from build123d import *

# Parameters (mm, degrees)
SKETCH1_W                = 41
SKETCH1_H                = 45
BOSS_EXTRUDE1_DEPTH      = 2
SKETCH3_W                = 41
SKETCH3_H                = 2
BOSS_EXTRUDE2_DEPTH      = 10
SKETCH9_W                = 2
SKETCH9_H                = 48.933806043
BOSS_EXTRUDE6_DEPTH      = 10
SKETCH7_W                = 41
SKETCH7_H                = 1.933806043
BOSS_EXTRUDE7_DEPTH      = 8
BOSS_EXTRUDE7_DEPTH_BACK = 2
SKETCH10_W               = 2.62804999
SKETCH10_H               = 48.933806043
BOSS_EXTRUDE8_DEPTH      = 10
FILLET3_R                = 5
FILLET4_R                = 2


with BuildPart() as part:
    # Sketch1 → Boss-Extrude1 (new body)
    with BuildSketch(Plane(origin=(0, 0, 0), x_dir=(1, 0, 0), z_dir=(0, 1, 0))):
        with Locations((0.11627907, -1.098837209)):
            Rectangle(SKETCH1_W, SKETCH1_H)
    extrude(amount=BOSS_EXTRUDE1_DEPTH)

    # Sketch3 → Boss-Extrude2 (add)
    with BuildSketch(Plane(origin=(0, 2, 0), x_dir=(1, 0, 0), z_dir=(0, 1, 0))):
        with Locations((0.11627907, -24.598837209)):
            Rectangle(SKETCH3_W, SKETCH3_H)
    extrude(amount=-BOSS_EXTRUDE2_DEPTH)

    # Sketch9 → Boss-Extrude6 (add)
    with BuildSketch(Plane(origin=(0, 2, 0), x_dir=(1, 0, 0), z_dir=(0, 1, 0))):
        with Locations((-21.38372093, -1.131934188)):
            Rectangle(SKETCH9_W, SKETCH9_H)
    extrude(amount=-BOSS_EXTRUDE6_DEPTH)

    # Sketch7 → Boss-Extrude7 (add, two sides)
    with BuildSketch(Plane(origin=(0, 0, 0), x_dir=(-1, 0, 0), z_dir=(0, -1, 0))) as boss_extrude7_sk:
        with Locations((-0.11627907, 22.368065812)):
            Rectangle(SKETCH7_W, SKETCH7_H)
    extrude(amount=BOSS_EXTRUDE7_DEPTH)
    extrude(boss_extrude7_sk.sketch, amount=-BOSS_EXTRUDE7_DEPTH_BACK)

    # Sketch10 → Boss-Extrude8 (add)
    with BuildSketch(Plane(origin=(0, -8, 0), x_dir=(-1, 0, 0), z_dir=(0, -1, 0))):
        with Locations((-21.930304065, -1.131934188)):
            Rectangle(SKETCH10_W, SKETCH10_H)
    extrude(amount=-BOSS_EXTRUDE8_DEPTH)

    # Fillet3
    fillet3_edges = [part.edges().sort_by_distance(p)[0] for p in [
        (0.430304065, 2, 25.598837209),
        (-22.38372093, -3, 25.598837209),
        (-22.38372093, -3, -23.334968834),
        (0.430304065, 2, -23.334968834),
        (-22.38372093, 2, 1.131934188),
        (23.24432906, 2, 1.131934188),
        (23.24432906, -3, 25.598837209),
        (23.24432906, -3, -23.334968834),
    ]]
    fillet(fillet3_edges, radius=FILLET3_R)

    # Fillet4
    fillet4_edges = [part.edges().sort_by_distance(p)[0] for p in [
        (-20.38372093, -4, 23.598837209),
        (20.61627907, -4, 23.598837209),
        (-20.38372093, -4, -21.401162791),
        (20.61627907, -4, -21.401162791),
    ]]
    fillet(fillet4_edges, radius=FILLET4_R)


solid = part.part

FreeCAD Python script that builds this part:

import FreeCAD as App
import Part
import Sketcher
from FreeCAD import Vector


def edges_at(feature, points):
    """Names of the edges that pass closest to the given points."""
    edges = feature.Shape.Edges
    near = lambda p: min(range(len(edges)), key=lambda i: edges[i].distToShape(Part.Vertex(*p))[0])
    return sorted({f"Edge{near(p) + 1}" for p in points})

doc = App.newDocument("Part")
params = doc.addObject("Spreadsheet::Sheet", "Params")
for row, (alias, value) in enumerate([
    ("sketch1_width", "41 mm"),
    ("sketch1_height", "45 mm"),
    ("pad1_length", "2 mm"),
    ("sketch2_width", "41 mm"),
    ("sketch2_height", "2 mm"),
    ("pad2_length", "10 mm"),
    ("sketch3_width", "2 mm"),
    ("pad3_length", "10 mm"),
    ("sketch4_width", "41 mm"),
    ("pad4_length", "8 mm"),
    ("pad4_length2", "2 mm"),
    ("pad5_length", "10 mm"),
    ("fillet_radius", "5 mm"),
    ("fillet2_radius", "2 mm"),
], start=1):
    params.set(f"A{row}", alias)
    params.set(f"B{row}", "=" + value)
    params.setAlias(f"B{row}", alias)

body = doc.addObject("PartDesign::Body", "Body")

# Sketch on XZ plane
sketch1 = body.newObject("Sketcher::SketchObject", "Sketch")
sketch1.AttachmentSupport = (doc.getObject("XZ_Plane"), [""])
sketch1.MapMode = "FlatFace"
sketch1.addGeometry(Part.LineSegment(Vector(-20, -21, 0), Vector(-20, 24, 0)), False)
sketch1.addGeometry(Part.LineSegment(Vector(-20, 24, 0), Vector(21, 24, 0)), False)
sketch1.addGeometry(Part.LineSegment(Vector(21, 24, 0), Vector(21, -21, 0)), False)
sketch1.addGeometry(Part.LineSegment(Vector(21, -21, 0), Vector(-20, -21, 0)), False)
sketch1.addConstraint(Sketcher.Constraint("Coincident", 0, 2, 1, 1))
sketch1.addConstraint(Sketcher.Constraint("Coincident", 1, 2, 2, 1))
sketch1.addConstraint(Sketcher.Constraint("Coincident", 2, 2, 3, 1))
sketch1.addConstraint(Sketcher.Constraint("Coincident", 3, 2, 0, 1))
sketch1.addConstraint(Sketcher.Constraint("Vertical", 0))
sketch1.addConstraint(Sketcher.Constraint("Horizontal", 1))
sketch1.addConstraint(Sketcher.Constraint("Vertical", 2))
sketch1.addConstraint(Sketcher.Constraint("Horizontal", 3))
sketch1.addConstraint(Sketcher.Constraint("DistanceX", 1, 1, 1, 2, 41.0))
sketch1.addConstraint(Sketcher.Constraint("DistanceY", 0, 1, 0, 2, 45.0))
sketch1.addConstraint(Sketcher.Constraint("DistanceX", 0, 2, -1, 1, 20.383721))
sketch1.addConstraint(Sketcher.Constraint("DistanceY", -1, 1, 0, 2, 23.598837))
sketch1.setExpression("Constraints[8]", "Params.sketch1_width")
sketch1.setExpression("Constraints[9]", "Params.sketch1_height")
pad1 = body.newObject("PartDesign::Pad", "Pad")
pad1.Profile = sketch1
pad1.setExpression("Length", "Params.pad1_length")
pad1.Reversed = True

# Sketch on XZ plane
sketch2 = body.newObject("Sketcher::SketchObject", "Sketch001")
sketch2.AttachmentSupport = (doc.getObject("XZ_Plane"), [""])
sketch2.MapMode = "FlatFace"
sketch2.AttachmentOffset = App.Placement(Vector(0, 0, -2), App.Rotation())
sketch2.addGeometry(Part.LineSegment(Vector(-20.4, 23.6, 0), Vector(-20.4, 25.6, 0)), False)
sketch2.addGeometry(Part.LineSegment(Vector(-20.4, 25.6, 0), Vector(20.6, 25.6, 0)), False)
sketch2.addGeometry(Part.LineSegment(Vector(20.6, 25.6, 0), Vector(20.6, 23.6, 0)), False)
sketch2.addGeometry(Part.LineSegment(Vector(20.6, 23.6, 0), Vector(-20.4, 23.6, 0)), False)
sketch2.addConstraint(Sketcher.Constraint("Coincident", 0, 2, 1, 1))
sketch2.addConstraint(Sketcher.Constraint("Coincident", 1, 2, 2, 1))
sketch2.addConstraint(Sketcher.Constraint("Coincident", 2, 2, 3, 1))
sketch2.addConstraint(Sketcher.Constraint("Coincident", 3, 2, 0, 1))
sketch2.addConstraint(Sketcher.Constraint("Vertical", 0))
sketch2.addConstraint(Sketcher.Constraint("Horizontal", 1))
sketch2.addConstraint(Sketcher.Constraint("Vertical", 2))
sketch2.addConstraint(Sketcher.Constraint("Horizontal", 3))
sketch2.addConstraint(Sketcher.Constraint("DistanceX", 1, 1, 1, 2, 41.0))
sketch2.addConstraint(Sketcher.Constraint("DistanceY", 0, 1, 0, 2, 2.0))
sketch2.addConstraint(Sketcher.Constraint("DistanceX", 0, 2, -1, 1, 20.383721))
sketch2.addConstraint(Sketcher.Constraint("DistanceY", -1, 1, 0, 2, 25.598837))
sketch2.setExpression("Constraints[8]", "Params.sketch2_width")
sketch2.setExpression("Constraints[9]", "Params.sketch2_height")
pad2 = body.newObject("PartDesign::Pad", "Pad001")
pad2.Profile = sketch2
pad2.setExpression("Length", "Params.pad2_length")

# Sketch on XZ plane
sketch3 = body.newObject("Sketcher::SketchObject", "Sketch002")
sketch3.AttachmentSupport = (doc.getObject("XZ_Plane"), [""])
sketch3.MapMode = "FlatFace"
sketch3.AttachmentOffset = App.Placement(Vector(0, 0, -2), App.Rotation())
sketch3.addGeometry(Part.LineSegment(Vector(-22.4, -23.3, 0), Vector(-22.4, 25.6, 0)), False)
sketch3.addGeometry(Part.LineSegment(Vector(-22.4, 25.6, 0), Vector(-20.4, 25.6, 0)), False)
sketch3.addGeometry(Part.LineSegment(Vector(-20.4, 25.6, 0), Vector(-20.4, -23.3, 0)), False)
sketch3.addGeometry(Part.LineSegment(Vector(-20.4, -23.3, 0), Vector(-22.4, -23.3, 0)), False)
sketch3.addConstraint(Sketcher.Constraint("Coincident", 0, 2, 1, 1))
sketch3.addConstraint(Sketcher.Constraint("Coincident", 1, 2, 2, 1))
sketch3.addConstraint(Sketcher.Constraint("Coincident", 2, 2, 3, 1))
sketch3.addConstraint(Sketcher.Constraint("Coincident", 3, 2, 0, 1))
sketch3.addConstraint(Sketcher.Constraint("Vertical", 0))
sketch3.addConstraint(Sketcher.Constraint("Horizontal", 1))
sketch3.addConstraint(Sketcher.Constraint("Vertical", 2))
sketch3.addConstraint(Sketcher.Constraint("Horizontal", 3))
sketch3.addConstraint(Sketcher.Constraint("DistanceX", 1, 1, 1, 2, 2.0))
sketch3.addConstraint(Sketcher.Constraint("DistanceY", 0, 1, 0, 2, 48.933806))
sketch3.addConstraint(Sketcher.Constraint("DistanceX", 0, 2, -1, 1, 22.383721))
sketch3.addConstraint(Sketcher.Constraint("DistanceY", 2, 2, -1, 1, 23.334969))
sketch3.setExpression("Constraints[8]", "Params.sketch3_width")
pad3 = body.newObject("PartDesign::Pad", "Pad002")
pad3.Profile = sketch3
pad3.setExpression("Length", "Params.pad3_length")

# Sketch on XZ plane
sketch4 = body.newObject("Sketcher::SketchObject", "Sketch003")
sketch4.AttachmentSupport = (doc.getObject("XZ_Plane"), [""])
sketch4.MapMode = "FlatFace"
sketch4.addGeometry(Part.LineSegment(Vector(20.6, -23.3, 0), Vector(20.6, -21.4, 0)), False)
sketch4.addGeometry(Part.LineSegment(Vector(20.6, -21.4, 0), Vector(-20.4, -21.4, 0)), False)
sketch4.addGeometry(Part.LineSegment(Vector(-20.4, -21.4, 0), Vector(-20.4, -23.3, 0)), False)
sketch4.addGeometry(Part.LineSegment(Vector(-20.4, -23.3, 0), Vector(20.6, -23.3, 0)), False)
sketch4.addConstraint(Sketcher.Constraint("Coincident", 0, 2, 1, 1))
sketch4.addConstraint(Sketcher.Constraint("Coincident", 1, 2, 2, 1))
sketch4.addConstraint(Sketcher.Constraint("Coincident", 2, 2, 3, 1))
sketch4.addConstraint(Sketcher.Constraint("Coincident", 3, 2, 0, 1))
sketch4.addConstraint(Sketcher.Constraint("Vertical", 0))
sketch4.addConstraint(Sketcher.Constraint("Horizontal", 1))
sketch4.addConstraint(Sketcher.Constraint("Vertical", 2))
sketch4.addConstraint(Sketcher.Constraint("Horizontal", 3))
sketch4.addConstraint(Sketcher.Constraint("DistanceX", 1, 2, 1, 1, 41.0))
sketch4.addConstraint(Sketcher.Constraint("DistanceY", 0, 1, 0, 2, 1.933806))
sketch4.addConstraint(Sketcher.Constraint("DistanceX", -1, 1, 0, 2, 20.616279))
sketch4.addConstraint(Sketcher.Constraint("DistanceY", 2, 2, -1, 1, 23.334969))
sketch4.setExpression("Constraints[8]", "Params.sketch4_width")
pad4 = body.newObject("PartDesign::Pad", "Pad003")
pad4.Profile = sketch4
pad4.Type = "TwoLengths"
pad4.setExpression("Length", "Params.pad4_length")
pad4.setExpression("Length2", "Params.pad4_length2")

# Sketch on XZ plane
sketch5 = body.newObject("Sketcher::SketchObject", "Sketch004")
sketch5.AttachmentSupport = (doc.getObject("XZ_Plane"), [""])
sketch5.MapMode = "FlatFace"
sketch5.AttachmentOffset = App.Placement(Vector(0, 0, 8), App.Rotation())
sketch5.addGeometry(Part.LineSegment(Vector(23.2, -23.3, 0), Vector(23.2, 25.6, 0)), False)
sketch5.addGeometry(Part.LineSegment(Vector(23.2, 25.6, 0), Vector(20.6, 25.6, 0)), False)
sketch5.addGeometry(Part.LineSegment(Vector(20.6, 25.6, 0), Vector(20.6, -23.3, 0)), False)
sketch5.addGeometry(Part.LineSegment(Vector(20.6, -23.3, 0), Vector(23.2, -23.3, 0)), False)
sketch5.addConstraint(Sketcher.Constraint("Coincident", 0, 2, 1, 1))
sketch5.addConstraint(Sketcher.Constraint("Coincident", 1, 2, 2, 1))
sketch5.addConstraint(Sketcher.Constraint("Coincident", 2, 2, 3, 1))
sketch5.addConstraint(Sketcher.Constraint("Coincident", 3, 2, 0, 1))
sketch5.addConstraint(Sketcher.Constraint("Vertical", 0))
sketch5.addConstraint(Sketcher.Constraint("Horizontal", 1))
sketch5.addConstraint(Sketcher.Constraint("Vertical", 2))
sketch5.addConstraint(Sketcher.Constraint("Horizontal", 3))
sketch5.addConstraint(Sketcher.Constraint("DistanceX", 1, 2, 1, 1, 2.62805))
sketch5.addConstraint(Sketcher.Constraint("DistanceY", 0, 1, 0, 2, 48.933806))
sketch5.addConstraint(Sketcher.Constraint("DistanceX", -1, 1, 0, 2, 23.244329))
sketch5.addConstraint(Sketcher.Constraint("DistanceY", 2, 2, -1, 1, 23.334969))
pad5 = body.newObject("PartDesign::Pad", "Pad004")
pad5.Profile = sketch5
pad5.setExpression("Length", "Params.pad5_length")
pad5.Reversed = True
doc.recompute()

fillet = body.newObject("PartDesign::Fillet", "Fillet")
fillet.Base = (pad5, edges_at(pad5, [
    (0.116, 2, 25.599),
    (-22.384, -3, 25.599),
    (-22.384, -3, -23.335),
    (0.43, 2, -23.335),
    (-22.384, 2, 1.132),
    (23.244, 2, 1.132),
    (23.244, -3, 25.599),
    (23.244, -3, -23.335),
]))
fillet.setExpression("Radius", "Params.fillet_radius")
doc.recompute()

fillet2 = body.newObject("PartDesign::Fillet", "Fillet001")
fillet2.Base = (fillet, edges_at(fillet, [
    (-20.384, -4, 23.599),
    (20.616, -4, 23.599),
    (-20.384, -4, -21.401),
    (20.616, -4, -21.401),
]))
fillet2.setExpression("Radius", "Params.fillet2_radius")

doc.recompute()
